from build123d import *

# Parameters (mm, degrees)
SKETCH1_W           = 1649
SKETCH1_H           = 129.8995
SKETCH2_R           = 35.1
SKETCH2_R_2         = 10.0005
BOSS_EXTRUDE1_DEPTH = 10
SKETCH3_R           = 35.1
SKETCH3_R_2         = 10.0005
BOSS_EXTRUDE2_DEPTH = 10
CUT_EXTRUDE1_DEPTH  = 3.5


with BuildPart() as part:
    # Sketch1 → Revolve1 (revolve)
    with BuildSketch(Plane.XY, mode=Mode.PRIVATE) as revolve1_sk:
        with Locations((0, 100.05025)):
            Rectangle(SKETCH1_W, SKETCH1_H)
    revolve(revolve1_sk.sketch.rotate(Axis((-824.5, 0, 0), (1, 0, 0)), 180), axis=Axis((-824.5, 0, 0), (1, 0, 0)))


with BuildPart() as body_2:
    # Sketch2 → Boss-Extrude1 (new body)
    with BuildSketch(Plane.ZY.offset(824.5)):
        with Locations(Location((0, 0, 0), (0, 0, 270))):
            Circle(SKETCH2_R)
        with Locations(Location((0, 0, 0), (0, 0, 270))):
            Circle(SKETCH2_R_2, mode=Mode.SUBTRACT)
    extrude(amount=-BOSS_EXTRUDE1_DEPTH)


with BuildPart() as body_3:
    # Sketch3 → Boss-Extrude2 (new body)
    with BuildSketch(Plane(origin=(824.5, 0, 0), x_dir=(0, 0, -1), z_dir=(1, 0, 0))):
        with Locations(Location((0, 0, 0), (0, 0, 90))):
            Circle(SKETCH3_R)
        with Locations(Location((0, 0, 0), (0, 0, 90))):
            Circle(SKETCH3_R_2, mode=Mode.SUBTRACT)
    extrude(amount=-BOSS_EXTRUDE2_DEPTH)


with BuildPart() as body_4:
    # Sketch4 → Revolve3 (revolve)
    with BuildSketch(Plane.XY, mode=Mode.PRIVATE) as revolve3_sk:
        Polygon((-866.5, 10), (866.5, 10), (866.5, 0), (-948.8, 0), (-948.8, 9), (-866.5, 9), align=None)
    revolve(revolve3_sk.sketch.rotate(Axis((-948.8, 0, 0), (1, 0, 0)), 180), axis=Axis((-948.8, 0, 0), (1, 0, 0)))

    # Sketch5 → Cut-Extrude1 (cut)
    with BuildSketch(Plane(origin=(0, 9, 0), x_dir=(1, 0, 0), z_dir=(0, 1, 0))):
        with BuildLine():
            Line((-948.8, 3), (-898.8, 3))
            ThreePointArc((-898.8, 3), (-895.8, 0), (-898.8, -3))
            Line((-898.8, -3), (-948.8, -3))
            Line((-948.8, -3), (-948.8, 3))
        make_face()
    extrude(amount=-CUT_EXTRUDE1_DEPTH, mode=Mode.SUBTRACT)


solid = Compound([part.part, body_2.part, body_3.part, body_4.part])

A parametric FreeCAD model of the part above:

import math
import FreeCAD as App
import Part
import Sketcher
from FreeCAD import Vector
Q = App.Units.Quantity

doc = App.newDocument("Part")
body = doc.addObject("PartDesign::Body", "Body")

# Sketch on XY plane
sketch1 = body.newObject("Sketcher::SketchObject", "Sketch")
sketch1.AttachmentSupport = (doc.getObject("XY_Plane"), [""])
sketch1.MapMode = "FlatFace"
sketch1.addGeometry(Part.LineSegment(Vector(-824, 165, 0), Vector(-824, 35, 0)), False)
sketch1.addGeometry(Part.LineSegment(Vector(-824, 35, 0), Vector(824, 35, 0)), False)
sketch1.addGeometry(Part.LineSegment(Vector(824, 35, 0), Vector(824, 165, 0)), False)
sketch1.addGeometry(Part.LineSegment(Vector(824, 165, 0), Vector(-824, 165, 0)), False)
sketch1.addConstraint(Sketcher.Constraint("Coincident", 0, 2, 1, 1))
sketch1.addConstraint(Sketcher.Constraint("Coincident", 1, 2, 2, 1))
sketch1.addConstraint(Sketcher.Constraint("Coincident", 2, 2, 3, 1))
sketch1.addConstraint(Sketcher.Constraint("Coincident", 3, 2, 0, 1))
sketch1.addConstraint(Sketcher.Constraint("Vertical", 0))
sketch1.addConstraint(Sketcher.Constraint("Horizontal", 1))
sketch1.addConstraint(Sketcher.Constraint("Vertical", 2))
sketch1.addConstraint(Sketcher.Constraint("Horizontal", 3))
sketch1.addConstraint(Sketcher.Constraint("DistanceX", 1, 1, 1, 2, Q("1649 mm")))
sketch1.addConstraint(Sketcher.Constraint("DistanceY", -1, 1, 2, 2, Q("165 mm")))
sketch1.addConstraint(Sketcher.Constraint("DistanceX", 0, 2, -1, 1, Q("824.5 mm")))
sketch1.addConstraint(Sketcher.Constraint("DistanceY", 0, 2, 0, 1, Q("129.8995 mm")))
revolution = body.newObject("PartDesign::Revolution", "Revolution")
revolution.Profile = sketch1
revolution.ReferenceAxis = (sketch1, ["H_Axis"])
revolution.Angle = 360
body2 = doc.addObject("PartDesign::Body", "Body001")

# Sketch on YZ plane
sketch2 = body2.newObject("Sketcher::SketchObject", "Sketch001")
sketch2.AttachmentSupport = (doc.getObject("YZ_Plane001"), [""])
sketch2.MapMode = "FlatFace"
sketch2.AttachmentOffset = App.Placement(Vector(0, 0, -824.5), App.Rotation())
sketch2.addGeometry(Part.Circle(Vector(0, 0, 0), Vector(0, 0, 1), 35), False)
sketch2.addGeometry(Part.Circle(Vector(0, 0, 0), Vector(0, 0, 1), 10), False)
sketch2.addConstraint(Sketcher.Constraint("Coincident", 0, 3, -1, 1))
sketch2.addConstraint(Sketcher.Constraint("Coincident", 1, 3, -1, 1))
sketch2.addConstraint(Sketcher.Constraint("Diameter", 0, Q("70.2 mm")))
sketch2.addConstraint(Sketcher.Constraint("Diameter", 1, Q("20.001 mm")))
pad1 = body2.newObject("PartDesign::Pad", "Pad")
pad1.Profile = sketch2
pad1.Length = 10
body3 = doc.addObject("PartDesign::Body", "Body002")

# Sketch on YZ plane
sketch3 = body3.newObject("Sketcher::SketchObject", "Sketch002")
sketch3.AttachmentSupport = (doc.getObject("YZ_Plane002"), [""])
sketch3.MapMode = "FlatFace"
sketch3.AttachmentOffset = App.Placement(Vector(0, 0, 824.5), App.Rotation())
sketch3.addGeometry(Part.Circle(Vector(0, 0, 0), Vector(0, 0, 1), 35), False)
sketch3.addGeometry(Part.Circle(Vector(0, 0, 0), Vector(0, 0, 1), 10), False)
sketch3.addConstraint(Sketcher.Constraint("Coincident", 0, 3, -1, 1))
sketch3.addConstraint(Sketcher.Constraint("Coincident", 1, 3, -1, 1))
sketch3.addConstraint(Sketcher.Constraint("Diameter", 0, Q("70.2 mm")))
sketch3.addConstraint(Sketcher.Constraint("Diameter", 1, Q("20.001 mm")))
pad2 = body3.newObject("PartDesign::Pad", "Pad001")
pad2.Profile = sketch3
pad2.Length = 10
pad2.Reversed = True
body4 = doc.addObject("PartDesign::Body", "Body003")

# Sketch on XY plane
sketch4 = body4.newObject("Sketcher::SketchObject", "Sketch003")
sketch4.AttachmentSupport = (doc.getObject("XY_Plane003"), [""])
sketch4.MapMode = "FlatFace"
sketch4.addGeometry(Part.LineSegment(Vector(866.5, 10, 0), Vector(-866.5, 10, 0)), False)
sketch4.addGeometry(Part.LineSegment(Vector(-866.5, 10, 0), Vector(-866.5, 9, 0)), False)
sketch4.addGeometry(Part.LineSegment(Vector(-866.5, 9, 0), Vector(-948.8, 9, 0)), False)
sketch4.addGeometry(Part.LineSegment(Vector(-948.8, 9, 0), Vector(-948.8, 0, 0)), False)
sketch4.addGeometry(Part.LineSegment(Vector(-948.8, 0, 0), Vector(866.5, 0, 0)), False)
sketch4.addGeometry(Part.LineSegment(Vector(866.5, 0, 0), Vector(866.5, 10, 0)), False)
sketch4.addConstraint(Sketcher.Constraint("Coincident", 0, 2, 1, 1))
sketch4.addConstraint(Sketcher.Constraint("Coincident", 1, 2, 2, 1))
sketch4.addConstraint(Sketcher.Constraint("Coincident", 2, 2, 3, 1))
sketch4.addConstraint(Sketcher.Constraint("Coincident", 3, 2, 4, 1))
sketch4.addConstraint(Sketcher.Constraint("Coincident", 4, 2, 5, 1))
sketch4.addConstraint(Sketcher.Constraint("Coincident", 5, 2, 0, 1))
sketch4.addConstraint(Sketcher.Constraint("Horizontal", 0))
sketch4.addConstraint(Sketcher.Constraint("Vertical", 1))
sketch4.addConstraint(Sketcher.Constraint("Horizontal", 2))
sketch4.addConstraint(Sketcher.Constraint("Vertical", 3))
sketch4.addConstraint(Sketcher.Constraint("Horizontal", 4))
sketch4.addConstraint(Sketcher.Constraint("Vertical", 5))
sketch4.addConstraint(Sketcher.Constraint("PointOnObject", 3, 2, -1))
sketch4.addConstraint(Sketcher.Constraint("DistanceX", 0, 2, 0, 1, Q("1733 mm")))
sketch4.addConstraint(Sketcher.Constraint("DistanceY", 1, 2, 1, 1, Q("1 mm")))
sketch4.addConstraint(Sketcher.Constraint("DistanceY", 3, 2, 3, 1, Q("9 mm")))
sketch4.addConstraint(Sketcher.Constraint("DistanceX", 2, 2, 2, 1, Q("82.3 mm")))
sketch4.addConstraint(Sketcher.Constraint("DistanceX", 0, 2, -1, 1, Q("866.5 mm")))
revolution2 = body4.newObject("PartDesign::Revolution", "Revolution001")
revolution2.Profile = sketch4
revolution2.ReferenceAxis = (sketch4, ["H_Axis"])
revolution2.Angle = 360

# Sketch on XZ plane
sketch5 = body4.newObject("Sketcher::SketchObject", "Sketch004")
sketch5.AttachmentSupport = (doc.getObject("XZ_Plane003"), [""])
sketch5.MapMode = "FlatFace"
sketch5.AttachmentOffset = App.Placement(Vector(0, 0, -9), App.Rotation())
sketch5.addGeometry(Part.LineSegment(Vector(-898.8, -3, 0), Vector(-948.8, -3, 0)), False)
sketch5.addGeometry(Part.LineSegment(Vector(-948.8, -3, 0), Vector(-948.8, 3, 0)), False)
sketch5.addGeometry(Part.LineSegment(Vector(-948.8, 3, 0), Vector(-898.8, 3, 0)), False)
sketch5.addGeometry(Part.ArcOfCircle(Part.Circle(Vector(-898.8, 0, 0), Vector(0, 0, 1), 3), math.radians(-90), math.radians(90)), False)
sketch5.addConstraint(Sketcher.Constraint("Coincident", 0, 2, 1, 1))
sketch5.addConstraint(Sketcher.Constraint("Coincident", 1, 2, 2, 1))
sketch5.addConstraint(Sketcher.Constraint("Tangent", 2, 2, 3, 2))
sketch5.addConstraint(Sketcher.Constraint("Tangent", 3, 1, 0, 1))
sketch5.addConstraint(Sketcher.Constraint("Horizontal", 0))
sketch5.addConstraint(Sketcher.Constraint("Vertical", 1))
sketch5.addConstraint(Sketcher.Constraint("Horizontal", 2))
sketch5.addConstraint(Sketcher.Constraint("PointOnObject", 3, 3, -1))
sketch5.addConstraint(Sketcher.Constraint("Radius", 3, Q("3 mm")))
sketch5.addConstraint(Sketcher.Constraint("DistanceX", 0, 2, 0, 1, Q("50 mm")))
sketch5.addConstraint(Sketcher.Constraint("DistanceX", 3, 3, -1, 1, Q("898.8 mm")))
pocket1 = body4.newObject("PartDesign::Pocket", "Pocket")
pocket1.Profile = sketch5
pocket1.Length = 3.5
pocket1.Reversed = True

doc.recompute()
